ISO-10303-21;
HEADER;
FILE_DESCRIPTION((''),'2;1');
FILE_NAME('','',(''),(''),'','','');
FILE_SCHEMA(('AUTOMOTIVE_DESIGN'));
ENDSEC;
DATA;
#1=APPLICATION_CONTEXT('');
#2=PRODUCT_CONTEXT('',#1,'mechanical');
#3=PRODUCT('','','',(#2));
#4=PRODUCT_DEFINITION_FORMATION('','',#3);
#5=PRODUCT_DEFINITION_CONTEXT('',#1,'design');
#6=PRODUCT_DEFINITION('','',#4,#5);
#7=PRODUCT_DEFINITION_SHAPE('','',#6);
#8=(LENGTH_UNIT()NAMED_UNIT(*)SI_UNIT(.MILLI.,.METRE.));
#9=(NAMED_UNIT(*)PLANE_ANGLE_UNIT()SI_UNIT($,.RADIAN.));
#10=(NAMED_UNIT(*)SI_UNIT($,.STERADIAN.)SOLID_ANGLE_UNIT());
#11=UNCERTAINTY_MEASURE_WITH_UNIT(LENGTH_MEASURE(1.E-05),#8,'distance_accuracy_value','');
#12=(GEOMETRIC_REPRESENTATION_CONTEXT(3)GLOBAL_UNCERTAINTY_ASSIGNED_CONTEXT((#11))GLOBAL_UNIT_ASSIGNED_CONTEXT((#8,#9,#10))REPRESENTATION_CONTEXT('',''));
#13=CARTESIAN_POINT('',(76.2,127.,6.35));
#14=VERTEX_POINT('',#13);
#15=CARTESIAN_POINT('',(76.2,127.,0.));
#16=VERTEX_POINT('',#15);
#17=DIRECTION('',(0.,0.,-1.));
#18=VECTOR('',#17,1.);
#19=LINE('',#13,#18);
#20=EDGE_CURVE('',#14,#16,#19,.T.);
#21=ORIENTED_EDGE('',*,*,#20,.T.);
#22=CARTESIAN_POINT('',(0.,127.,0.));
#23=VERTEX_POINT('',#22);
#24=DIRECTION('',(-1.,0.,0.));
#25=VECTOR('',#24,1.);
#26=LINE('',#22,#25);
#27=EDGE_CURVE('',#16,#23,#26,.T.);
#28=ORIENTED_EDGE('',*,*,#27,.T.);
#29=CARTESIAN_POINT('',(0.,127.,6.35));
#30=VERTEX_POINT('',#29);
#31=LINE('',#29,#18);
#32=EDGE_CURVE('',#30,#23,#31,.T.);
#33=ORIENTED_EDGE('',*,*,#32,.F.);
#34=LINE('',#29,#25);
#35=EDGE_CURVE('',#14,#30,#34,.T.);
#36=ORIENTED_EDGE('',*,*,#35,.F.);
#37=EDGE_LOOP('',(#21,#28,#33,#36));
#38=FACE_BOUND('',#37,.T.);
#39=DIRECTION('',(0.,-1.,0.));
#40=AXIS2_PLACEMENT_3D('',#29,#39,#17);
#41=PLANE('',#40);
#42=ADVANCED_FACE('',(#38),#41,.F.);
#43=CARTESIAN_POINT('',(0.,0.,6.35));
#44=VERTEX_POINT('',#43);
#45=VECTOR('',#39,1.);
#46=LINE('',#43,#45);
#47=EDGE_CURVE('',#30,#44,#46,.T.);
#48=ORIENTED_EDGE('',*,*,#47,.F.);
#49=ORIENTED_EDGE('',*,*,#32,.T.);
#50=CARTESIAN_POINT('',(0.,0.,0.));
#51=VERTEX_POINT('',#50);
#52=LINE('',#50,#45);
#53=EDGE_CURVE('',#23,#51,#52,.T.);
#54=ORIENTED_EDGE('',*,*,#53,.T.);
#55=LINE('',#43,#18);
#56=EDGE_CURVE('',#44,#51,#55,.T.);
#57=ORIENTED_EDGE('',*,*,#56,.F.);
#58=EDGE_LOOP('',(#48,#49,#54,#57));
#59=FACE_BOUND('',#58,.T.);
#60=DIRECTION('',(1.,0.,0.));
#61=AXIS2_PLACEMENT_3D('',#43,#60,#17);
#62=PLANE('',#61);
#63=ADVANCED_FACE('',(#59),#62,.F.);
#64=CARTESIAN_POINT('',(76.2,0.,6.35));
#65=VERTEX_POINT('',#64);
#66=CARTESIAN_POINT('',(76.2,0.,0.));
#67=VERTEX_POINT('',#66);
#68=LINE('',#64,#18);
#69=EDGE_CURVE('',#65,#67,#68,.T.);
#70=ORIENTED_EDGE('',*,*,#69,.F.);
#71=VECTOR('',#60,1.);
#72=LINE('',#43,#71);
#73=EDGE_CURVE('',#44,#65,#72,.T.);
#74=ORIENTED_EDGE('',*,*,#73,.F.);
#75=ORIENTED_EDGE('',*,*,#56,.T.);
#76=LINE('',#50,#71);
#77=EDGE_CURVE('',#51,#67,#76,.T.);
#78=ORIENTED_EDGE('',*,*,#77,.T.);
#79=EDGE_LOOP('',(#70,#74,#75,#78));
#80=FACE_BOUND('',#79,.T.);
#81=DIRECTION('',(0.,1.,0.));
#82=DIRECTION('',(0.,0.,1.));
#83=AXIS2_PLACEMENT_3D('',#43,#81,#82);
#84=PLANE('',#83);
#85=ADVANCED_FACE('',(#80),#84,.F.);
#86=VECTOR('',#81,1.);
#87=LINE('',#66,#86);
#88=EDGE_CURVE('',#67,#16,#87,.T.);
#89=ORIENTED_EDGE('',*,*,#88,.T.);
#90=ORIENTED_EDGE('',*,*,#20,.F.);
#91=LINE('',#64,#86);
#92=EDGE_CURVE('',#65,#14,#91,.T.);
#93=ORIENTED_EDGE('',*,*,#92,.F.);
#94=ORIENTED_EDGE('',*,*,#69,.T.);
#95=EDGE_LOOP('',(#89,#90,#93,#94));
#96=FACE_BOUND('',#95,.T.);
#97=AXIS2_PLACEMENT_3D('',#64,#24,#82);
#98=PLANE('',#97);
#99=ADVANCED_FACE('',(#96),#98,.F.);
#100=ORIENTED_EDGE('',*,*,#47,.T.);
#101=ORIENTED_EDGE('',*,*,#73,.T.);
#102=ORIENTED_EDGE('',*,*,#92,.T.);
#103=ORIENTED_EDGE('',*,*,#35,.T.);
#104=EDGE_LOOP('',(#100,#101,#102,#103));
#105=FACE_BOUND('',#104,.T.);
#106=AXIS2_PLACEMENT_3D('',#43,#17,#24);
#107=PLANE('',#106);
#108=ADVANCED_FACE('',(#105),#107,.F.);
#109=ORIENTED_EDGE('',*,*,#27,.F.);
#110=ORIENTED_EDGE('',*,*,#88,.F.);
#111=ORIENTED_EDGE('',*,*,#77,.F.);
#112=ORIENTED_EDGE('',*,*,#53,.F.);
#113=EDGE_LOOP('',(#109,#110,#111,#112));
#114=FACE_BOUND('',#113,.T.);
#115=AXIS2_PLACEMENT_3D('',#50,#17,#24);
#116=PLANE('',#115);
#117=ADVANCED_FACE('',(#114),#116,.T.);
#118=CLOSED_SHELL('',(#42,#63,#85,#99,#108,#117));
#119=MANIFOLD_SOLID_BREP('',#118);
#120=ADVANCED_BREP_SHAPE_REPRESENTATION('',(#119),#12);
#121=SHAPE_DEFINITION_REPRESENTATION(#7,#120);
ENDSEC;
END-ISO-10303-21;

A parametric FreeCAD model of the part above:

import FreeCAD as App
import Part
import Sketcher

V = App.Vector
Q = App.Units.Quantity


def add_polygon(sketch, points):
    """Adds a closed chain of lines whose ends are joined by coincident constraints."""
    first, n = sketch.GeometryCount, len(points)
    for a, b in zip(points, points[1:] + points[:1]):
        sketch.addGeometry(Part.LineSegment(App.Vector(*a, 0), App.Vector(*b, 0)), False)
    for i in range(n):
        sketch.addConstraint(Sketcher.Constraint("Coincident", first + i, 2, first + (i + 1) % n, 1))

doc = App.newDocument("Part")
params = doc.addObject("Spreadsheet::Sheet", "Params")
for row, (alias, value) in enumerate([
    ("sketch1_width", "3 in"),
    ("sketch1_height", "5 in"),
    ("pad1_length", "0.25 in"),
], start=1):
    params.set(f"A{row}", alias)
    params.set(f"B{row}", "=" + value)
    params.setAlias(f"B{row}", alias)

body = doc.addObject("PartDesign::Body", "Body")

sketch1 = body.newObject("Sketcher::SketchObject", "Sketch")
sketch1.AttachmentSupport = (doc.getObject("XY_Plane"), [""])
sketch1.MapMode = "FlatFace"
add_polygon(sketch1, [(0, 127), (0, 0), (76.2, 0), (76.2, 127)])
sketch1.addConstraint([
    Sketcher.Constraint("Vertical", 0),
    Sketcher.Constraint("Horizontal", 1),
    Sketcher.Constraint("Vertical", 2),
    Sketcher.Constraint("Horizontal", 3),
    Sketcher.Constraint("Coincident", 0, 2, -1, 1),
    Sketcher.Constraint("DistanceX", 1, 1, 1, 2, Q("3 in")),
    Sketcher.Constraint("DistanceY", 0, 2, 0, 1, Q("5 in")),
])
sketch1.setExpression("Constraints[9]", "Params.sketch1_width")
sketch1.setExpression("Constraints[10]", "Params.sketch1_height")
pad1 = body.newObject("PartDesign::Pad", "Pad")
pad1.Profile = sketch1
pad1.setExpression("Length", "Params.pad1_length")

doc.recompute()
